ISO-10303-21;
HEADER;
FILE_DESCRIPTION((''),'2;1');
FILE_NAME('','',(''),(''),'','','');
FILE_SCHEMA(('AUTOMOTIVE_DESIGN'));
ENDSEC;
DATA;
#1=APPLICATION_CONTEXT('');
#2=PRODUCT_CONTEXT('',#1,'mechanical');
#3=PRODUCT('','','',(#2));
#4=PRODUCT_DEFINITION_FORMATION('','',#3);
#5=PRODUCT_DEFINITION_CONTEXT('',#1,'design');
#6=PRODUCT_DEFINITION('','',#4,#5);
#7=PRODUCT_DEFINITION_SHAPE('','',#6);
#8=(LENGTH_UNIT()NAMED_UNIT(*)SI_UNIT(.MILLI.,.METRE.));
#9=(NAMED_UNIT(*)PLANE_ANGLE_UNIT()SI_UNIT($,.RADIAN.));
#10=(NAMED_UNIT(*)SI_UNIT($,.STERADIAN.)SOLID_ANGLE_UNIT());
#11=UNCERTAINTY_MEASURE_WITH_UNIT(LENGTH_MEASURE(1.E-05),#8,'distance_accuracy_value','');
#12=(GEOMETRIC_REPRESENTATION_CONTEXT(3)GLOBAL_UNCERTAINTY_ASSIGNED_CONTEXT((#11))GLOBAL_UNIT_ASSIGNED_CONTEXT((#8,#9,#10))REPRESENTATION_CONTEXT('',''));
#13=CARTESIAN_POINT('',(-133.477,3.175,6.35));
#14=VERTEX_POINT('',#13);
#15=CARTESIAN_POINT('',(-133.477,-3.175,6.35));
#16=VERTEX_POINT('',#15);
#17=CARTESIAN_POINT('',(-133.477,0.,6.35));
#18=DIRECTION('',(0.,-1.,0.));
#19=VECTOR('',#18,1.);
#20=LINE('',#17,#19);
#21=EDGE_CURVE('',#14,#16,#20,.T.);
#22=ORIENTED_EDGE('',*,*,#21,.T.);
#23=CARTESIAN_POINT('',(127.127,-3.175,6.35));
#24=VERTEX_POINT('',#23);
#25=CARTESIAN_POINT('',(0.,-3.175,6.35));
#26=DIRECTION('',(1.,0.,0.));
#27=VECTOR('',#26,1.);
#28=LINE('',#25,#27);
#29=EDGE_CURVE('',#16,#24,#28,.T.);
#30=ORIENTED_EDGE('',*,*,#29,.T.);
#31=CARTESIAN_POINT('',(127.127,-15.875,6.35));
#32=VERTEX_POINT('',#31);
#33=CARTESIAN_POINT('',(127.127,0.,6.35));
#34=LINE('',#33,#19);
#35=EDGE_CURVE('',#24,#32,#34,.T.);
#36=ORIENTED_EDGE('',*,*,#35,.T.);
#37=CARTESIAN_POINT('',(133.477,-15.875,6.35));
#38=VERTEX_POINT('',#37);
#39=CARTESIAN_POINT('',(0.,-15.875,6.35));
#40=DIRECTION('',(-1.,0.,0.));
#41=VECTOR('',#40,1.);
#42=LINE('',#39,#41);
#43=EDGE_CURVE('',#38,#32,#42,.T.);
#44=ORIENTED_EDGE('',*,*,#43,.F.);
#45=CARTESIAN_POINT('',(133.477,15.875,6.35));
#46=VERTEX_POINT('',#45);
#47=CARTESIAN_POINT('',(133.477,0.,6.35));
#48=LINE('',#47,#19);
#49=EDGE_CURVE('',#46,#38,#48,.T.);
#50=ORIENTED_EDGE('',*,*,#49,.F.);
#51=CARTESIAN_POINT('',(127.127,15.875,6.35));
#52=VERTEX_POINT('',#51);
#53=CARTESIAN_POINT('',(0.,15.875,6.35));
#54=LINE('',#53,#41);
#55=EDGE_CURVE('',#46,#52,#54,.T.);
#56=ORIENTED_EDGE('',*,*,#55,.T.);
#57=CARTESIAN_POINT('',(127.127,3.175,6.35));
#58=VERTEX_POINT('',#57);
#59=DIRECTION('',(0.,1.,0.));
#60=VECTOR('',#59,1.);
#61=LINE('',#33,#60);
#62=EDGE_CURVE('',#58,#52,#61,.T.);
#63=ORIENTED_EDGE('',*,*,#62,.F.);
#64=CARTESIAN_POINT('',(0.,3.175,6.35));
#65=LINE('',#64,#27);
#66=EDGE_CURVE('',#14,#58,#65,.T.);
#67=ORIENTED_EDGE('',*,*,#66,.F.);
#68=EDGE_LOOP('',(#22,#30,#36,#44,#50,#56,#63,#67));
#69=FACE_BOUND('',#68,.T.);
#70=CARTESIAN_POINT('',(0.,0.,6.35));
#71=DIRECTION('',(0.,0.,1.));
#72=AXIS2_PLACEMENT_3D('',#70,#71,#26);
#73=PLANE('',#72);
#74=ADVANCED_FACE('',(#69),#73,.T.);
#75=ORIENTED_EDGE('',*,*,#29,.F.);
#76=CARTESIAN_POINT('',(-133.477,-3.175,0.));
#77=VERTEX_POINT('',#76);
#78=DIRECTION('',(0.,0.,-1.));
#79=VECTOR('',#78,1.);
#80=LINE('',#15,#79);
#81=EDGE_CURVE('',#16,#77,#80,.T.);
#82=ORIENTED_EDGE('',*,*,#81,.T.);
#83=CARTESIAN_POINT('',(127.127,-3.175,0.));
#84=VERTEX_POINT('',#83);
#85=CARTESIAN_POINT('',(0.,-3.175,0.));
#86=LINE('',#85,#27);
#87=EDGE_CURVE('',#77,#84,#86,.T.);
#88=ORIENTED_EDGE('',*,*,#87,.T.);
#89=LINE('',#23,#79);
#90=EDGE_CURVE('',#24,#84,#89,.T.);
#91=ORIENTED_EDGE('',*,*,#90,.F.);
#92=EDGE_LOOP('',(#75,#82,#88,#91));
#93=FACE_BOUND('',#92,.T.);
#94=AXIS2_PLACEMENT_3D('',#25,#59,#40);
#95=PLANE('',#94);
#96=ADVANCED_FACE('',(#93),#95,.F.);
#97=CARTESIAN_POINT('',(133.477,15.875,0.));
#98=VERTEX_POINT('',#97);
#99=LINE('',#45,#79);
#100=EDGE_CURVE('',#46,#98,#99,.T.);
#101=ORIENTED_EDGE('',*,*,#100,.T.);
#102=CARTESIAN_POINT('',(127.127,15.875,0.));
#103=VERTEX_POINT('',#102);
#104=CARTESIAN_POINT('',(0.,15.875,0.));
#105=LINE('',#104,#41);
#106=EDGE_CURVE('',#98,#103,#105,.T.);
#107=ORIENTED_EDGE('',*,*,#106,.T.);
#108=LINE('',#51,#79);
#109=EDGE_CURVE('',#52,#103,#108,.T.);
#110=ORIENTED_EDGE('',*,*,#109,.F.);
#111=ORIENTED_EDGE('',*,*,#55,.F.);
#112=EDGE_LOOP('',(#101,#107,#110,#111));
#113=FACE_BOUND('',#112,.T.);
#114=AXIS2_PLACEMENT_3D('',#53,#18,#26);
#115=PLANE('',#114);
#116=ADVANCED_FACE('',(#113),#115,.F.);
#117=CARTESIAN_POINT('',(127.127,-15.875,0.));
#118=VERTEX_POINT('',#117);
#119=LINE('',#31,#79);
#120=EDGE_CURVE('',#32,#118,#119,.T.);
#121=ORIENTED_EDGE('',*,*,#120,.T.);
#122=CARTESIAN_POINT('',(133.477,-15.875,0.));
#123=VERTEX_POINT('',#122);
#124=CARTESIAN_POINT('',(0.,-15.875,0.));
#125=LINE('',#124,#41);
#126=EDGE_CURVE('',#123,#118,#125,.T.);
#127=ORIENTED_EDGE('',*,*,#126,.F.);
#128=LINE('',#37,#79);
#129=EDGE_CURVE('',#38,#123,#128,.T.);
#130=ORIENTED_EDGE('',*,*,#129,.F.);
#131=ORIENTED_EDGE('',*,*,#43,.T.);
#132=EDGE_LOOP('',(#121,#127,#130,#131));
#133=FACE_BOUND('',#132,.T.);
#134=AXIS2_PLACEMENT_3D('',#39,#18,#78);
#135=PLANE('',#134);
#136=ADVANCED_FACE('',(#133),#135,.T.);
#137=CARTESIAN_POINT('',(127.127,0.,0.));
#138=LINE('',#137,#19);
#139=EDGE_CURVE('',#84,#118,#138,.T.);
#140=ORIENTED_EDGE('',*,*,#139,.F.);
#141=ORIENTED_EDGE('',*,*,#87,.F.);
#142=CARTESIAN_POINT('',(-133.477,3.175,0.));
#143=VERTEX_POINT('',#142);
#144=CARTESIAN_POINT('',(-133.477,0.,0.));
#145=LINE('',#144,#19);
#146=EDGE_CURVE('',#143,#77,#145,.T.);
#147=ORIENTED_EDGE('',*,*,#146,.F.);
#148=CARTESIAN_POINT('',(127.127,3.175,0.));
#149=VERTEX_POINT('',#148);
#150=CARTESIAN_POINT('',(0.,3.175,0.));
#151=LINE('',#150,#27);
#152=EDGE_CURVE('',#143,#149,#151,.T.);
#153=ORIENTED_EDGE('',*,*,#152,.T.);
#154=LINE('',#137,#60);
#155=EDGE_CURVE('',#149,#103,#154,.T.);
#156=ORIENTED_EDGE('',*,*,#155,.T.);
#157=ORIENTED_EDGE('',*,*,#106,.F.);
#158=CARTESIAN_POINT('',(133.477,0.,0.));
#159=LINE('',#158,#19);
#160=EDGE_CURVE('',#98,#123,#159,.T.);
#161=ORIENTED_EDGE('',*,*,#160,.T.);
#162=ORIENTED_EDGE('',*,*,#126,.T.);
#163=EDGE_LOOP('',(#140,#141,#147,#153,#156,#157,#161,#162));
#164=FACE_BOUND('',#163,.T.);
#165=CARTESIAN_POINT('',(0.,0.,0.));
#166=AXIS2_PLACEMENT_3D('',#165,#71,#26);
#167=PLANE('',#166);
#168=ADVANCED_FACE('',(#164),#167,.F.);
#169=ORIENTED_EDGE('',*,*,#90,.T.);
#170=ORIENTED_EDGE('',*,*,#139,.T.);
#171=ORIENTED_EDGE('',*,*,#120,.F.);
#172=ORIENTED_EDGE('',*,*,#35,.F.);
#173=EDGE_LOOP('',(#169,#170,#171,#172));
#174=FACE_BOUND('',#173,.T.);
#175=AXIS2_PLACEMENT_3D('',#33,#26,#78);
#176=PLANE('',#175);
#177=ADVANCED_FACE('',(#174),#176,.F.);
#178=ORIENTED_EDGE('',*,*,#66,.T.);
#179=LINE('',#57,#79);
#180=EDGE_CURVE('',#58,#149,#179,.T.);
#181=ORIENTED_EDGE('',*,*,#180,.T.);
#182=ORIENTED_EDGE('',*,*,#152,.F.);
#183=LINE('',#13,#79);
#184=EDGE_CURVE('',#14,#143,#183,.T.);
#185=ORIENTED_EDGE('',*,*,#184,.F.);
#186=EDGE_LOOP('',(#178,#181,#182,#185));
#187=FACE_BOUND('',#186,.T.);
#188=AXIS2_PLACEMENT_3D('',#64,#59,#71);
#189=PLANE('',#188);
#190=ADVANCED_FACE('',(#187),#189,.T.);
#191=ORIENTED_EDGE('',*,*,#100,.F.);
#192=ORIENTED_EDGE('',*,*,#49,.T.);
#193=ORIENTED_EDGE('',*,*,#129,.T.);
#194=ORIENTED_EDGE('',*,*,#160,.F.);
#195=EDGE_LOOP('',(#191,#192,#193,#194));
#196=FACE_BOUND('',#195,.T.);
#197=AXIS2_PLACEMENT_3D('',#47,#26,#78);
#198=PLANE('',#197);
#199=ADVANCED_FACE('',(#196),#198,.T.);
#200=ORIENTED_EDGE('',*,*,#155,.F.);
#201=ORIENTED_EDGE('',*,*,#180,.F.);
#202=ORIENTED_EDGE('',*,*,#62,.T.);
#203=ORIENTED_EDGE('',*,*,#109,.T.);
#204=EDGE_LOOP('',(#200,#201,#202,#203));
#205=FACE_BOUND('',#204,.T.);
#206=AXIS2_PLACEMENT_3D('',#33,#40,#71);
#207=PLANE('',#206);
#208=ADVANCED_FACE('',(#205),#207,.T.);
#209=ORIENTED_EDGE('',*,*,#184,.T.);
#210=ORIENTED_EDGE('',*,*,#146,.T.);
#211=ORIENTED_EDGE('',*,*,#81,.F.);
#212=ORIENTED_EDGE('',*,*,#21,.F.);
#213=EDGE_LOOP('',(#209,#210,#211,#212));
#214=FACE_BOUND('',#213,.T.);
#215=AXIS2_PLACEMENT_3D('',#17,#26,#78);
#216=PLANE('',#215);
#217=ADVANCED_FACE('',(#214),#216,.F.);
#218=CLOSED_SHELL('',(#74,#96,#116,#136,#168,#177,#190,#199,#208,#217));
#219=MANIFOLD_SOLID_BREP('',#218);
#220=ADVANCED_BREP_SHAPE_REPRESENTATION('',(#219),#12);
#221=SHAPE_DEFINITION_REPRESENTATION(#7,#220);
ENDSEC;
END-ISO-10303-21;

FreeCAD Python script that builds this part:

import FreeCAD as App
import Part
import Sketcher
Q = App.Units.Quantity

doc = App.newDocument("Part")
body = doc.addObject("PartDesign::Body", "Body")

sketch1 = body.newObject("Sketcher::SketchObject", "Sketch")
sketch1.AttachmentSupport = (doc.getObject("XY_Plane"), [""])
sketch1.MapMode = "FlatFace"
sketch1.addGeometry([
    Part.LineSegment(App.Vector(-133, 3, 0), App.Vector(-133, -3, 0)),
    Part.LineSegment(App.Vector(-133, -3, 0), App.Vector(127, -3, 0)),
    Part.LineSegment(App.Vector(127, -3, 0), App.Vector(127, -16, 0)),
    Part.LineSegment(App.Vector(127, -16, 0), App.Vector(133, -16, 0)),
    Part.LineSegment(App.Vector(133, -16, 0), App.Vector(133, 16, 0)),
    Part.LineSegment(App.Vector(133, 16, 0), App.Vector(127, 16, 0)),
    Part.LineSegment(App.Vector(127, 16, 0), App.Vector(127, 3, 0)),
    Part.LineSegment(App.Vector(127, 3, 0), App.Vector(-133, 3, 0)),
], False)
sketch1.addConstraint([
    Sketcher.Constraint("Coincident", 0, 2, 1, 1),
    Sketcher.Constraint("Coincident", 1, 2, 2, 1),
    Sketcher.Constraint("Coincident", 2, 2, 3, 1),
    Sketcher.Constraint("Coincident", 3, 2, 4, 1),
    Sketcher.Constraint("Coincident", 4, 2, 5, 1),
    Sketcher.Constraint("Coincident", 5, 2, 6, 1),
    Sketcher.Constraint("Coincident", 6, 2, 7, 1),
    Sketcher.Constraint("Coincident", 7, 2, 0, 1),
    Sketcher.Constraint("Vertical", 0),
    Sketcher.Constraint("Horizontal", 1),
    Sketcher.Constraint("Vertical", 2),
    Sketcher.Constraint("Horizontal", 3),
    Sketcher.Constraint("Vertical", 4),
    Sketcher.Constraint("Horizontal", 5),
    Sketcher.Constraint("Vertical", 6),
    Sketcher.Constraint("Horizontal", 7),
    Sketcher.Constraint("Symmetric", 2, 2, 5, 2, -1),
    Sketcher.Constraint("Equal", 5, 0),
    Sketcher.Constraint("Equal", 2, 6),
    Sketcher.Constraint("DistanceY", 2, 2, 2, 1, Q("0.5 in")),
    Sketcher.Constraint("DistanceX", 1, 1, 1, 2, Q("10.26 in")),
    Sketcher.Constraint("DistanceX", 3, 1, 3, 2, Q("0.25 in")),
    Sketcher.Constraint("DistanceX", 0, 2, -1, 1, Q("5.255 in")),
])
pad1 = body.newObject("PartDesign::Pad", "Pad")
pad1.Profile = sketch1
pad1.Length = Q("0.25 in")

doc.recompute()
